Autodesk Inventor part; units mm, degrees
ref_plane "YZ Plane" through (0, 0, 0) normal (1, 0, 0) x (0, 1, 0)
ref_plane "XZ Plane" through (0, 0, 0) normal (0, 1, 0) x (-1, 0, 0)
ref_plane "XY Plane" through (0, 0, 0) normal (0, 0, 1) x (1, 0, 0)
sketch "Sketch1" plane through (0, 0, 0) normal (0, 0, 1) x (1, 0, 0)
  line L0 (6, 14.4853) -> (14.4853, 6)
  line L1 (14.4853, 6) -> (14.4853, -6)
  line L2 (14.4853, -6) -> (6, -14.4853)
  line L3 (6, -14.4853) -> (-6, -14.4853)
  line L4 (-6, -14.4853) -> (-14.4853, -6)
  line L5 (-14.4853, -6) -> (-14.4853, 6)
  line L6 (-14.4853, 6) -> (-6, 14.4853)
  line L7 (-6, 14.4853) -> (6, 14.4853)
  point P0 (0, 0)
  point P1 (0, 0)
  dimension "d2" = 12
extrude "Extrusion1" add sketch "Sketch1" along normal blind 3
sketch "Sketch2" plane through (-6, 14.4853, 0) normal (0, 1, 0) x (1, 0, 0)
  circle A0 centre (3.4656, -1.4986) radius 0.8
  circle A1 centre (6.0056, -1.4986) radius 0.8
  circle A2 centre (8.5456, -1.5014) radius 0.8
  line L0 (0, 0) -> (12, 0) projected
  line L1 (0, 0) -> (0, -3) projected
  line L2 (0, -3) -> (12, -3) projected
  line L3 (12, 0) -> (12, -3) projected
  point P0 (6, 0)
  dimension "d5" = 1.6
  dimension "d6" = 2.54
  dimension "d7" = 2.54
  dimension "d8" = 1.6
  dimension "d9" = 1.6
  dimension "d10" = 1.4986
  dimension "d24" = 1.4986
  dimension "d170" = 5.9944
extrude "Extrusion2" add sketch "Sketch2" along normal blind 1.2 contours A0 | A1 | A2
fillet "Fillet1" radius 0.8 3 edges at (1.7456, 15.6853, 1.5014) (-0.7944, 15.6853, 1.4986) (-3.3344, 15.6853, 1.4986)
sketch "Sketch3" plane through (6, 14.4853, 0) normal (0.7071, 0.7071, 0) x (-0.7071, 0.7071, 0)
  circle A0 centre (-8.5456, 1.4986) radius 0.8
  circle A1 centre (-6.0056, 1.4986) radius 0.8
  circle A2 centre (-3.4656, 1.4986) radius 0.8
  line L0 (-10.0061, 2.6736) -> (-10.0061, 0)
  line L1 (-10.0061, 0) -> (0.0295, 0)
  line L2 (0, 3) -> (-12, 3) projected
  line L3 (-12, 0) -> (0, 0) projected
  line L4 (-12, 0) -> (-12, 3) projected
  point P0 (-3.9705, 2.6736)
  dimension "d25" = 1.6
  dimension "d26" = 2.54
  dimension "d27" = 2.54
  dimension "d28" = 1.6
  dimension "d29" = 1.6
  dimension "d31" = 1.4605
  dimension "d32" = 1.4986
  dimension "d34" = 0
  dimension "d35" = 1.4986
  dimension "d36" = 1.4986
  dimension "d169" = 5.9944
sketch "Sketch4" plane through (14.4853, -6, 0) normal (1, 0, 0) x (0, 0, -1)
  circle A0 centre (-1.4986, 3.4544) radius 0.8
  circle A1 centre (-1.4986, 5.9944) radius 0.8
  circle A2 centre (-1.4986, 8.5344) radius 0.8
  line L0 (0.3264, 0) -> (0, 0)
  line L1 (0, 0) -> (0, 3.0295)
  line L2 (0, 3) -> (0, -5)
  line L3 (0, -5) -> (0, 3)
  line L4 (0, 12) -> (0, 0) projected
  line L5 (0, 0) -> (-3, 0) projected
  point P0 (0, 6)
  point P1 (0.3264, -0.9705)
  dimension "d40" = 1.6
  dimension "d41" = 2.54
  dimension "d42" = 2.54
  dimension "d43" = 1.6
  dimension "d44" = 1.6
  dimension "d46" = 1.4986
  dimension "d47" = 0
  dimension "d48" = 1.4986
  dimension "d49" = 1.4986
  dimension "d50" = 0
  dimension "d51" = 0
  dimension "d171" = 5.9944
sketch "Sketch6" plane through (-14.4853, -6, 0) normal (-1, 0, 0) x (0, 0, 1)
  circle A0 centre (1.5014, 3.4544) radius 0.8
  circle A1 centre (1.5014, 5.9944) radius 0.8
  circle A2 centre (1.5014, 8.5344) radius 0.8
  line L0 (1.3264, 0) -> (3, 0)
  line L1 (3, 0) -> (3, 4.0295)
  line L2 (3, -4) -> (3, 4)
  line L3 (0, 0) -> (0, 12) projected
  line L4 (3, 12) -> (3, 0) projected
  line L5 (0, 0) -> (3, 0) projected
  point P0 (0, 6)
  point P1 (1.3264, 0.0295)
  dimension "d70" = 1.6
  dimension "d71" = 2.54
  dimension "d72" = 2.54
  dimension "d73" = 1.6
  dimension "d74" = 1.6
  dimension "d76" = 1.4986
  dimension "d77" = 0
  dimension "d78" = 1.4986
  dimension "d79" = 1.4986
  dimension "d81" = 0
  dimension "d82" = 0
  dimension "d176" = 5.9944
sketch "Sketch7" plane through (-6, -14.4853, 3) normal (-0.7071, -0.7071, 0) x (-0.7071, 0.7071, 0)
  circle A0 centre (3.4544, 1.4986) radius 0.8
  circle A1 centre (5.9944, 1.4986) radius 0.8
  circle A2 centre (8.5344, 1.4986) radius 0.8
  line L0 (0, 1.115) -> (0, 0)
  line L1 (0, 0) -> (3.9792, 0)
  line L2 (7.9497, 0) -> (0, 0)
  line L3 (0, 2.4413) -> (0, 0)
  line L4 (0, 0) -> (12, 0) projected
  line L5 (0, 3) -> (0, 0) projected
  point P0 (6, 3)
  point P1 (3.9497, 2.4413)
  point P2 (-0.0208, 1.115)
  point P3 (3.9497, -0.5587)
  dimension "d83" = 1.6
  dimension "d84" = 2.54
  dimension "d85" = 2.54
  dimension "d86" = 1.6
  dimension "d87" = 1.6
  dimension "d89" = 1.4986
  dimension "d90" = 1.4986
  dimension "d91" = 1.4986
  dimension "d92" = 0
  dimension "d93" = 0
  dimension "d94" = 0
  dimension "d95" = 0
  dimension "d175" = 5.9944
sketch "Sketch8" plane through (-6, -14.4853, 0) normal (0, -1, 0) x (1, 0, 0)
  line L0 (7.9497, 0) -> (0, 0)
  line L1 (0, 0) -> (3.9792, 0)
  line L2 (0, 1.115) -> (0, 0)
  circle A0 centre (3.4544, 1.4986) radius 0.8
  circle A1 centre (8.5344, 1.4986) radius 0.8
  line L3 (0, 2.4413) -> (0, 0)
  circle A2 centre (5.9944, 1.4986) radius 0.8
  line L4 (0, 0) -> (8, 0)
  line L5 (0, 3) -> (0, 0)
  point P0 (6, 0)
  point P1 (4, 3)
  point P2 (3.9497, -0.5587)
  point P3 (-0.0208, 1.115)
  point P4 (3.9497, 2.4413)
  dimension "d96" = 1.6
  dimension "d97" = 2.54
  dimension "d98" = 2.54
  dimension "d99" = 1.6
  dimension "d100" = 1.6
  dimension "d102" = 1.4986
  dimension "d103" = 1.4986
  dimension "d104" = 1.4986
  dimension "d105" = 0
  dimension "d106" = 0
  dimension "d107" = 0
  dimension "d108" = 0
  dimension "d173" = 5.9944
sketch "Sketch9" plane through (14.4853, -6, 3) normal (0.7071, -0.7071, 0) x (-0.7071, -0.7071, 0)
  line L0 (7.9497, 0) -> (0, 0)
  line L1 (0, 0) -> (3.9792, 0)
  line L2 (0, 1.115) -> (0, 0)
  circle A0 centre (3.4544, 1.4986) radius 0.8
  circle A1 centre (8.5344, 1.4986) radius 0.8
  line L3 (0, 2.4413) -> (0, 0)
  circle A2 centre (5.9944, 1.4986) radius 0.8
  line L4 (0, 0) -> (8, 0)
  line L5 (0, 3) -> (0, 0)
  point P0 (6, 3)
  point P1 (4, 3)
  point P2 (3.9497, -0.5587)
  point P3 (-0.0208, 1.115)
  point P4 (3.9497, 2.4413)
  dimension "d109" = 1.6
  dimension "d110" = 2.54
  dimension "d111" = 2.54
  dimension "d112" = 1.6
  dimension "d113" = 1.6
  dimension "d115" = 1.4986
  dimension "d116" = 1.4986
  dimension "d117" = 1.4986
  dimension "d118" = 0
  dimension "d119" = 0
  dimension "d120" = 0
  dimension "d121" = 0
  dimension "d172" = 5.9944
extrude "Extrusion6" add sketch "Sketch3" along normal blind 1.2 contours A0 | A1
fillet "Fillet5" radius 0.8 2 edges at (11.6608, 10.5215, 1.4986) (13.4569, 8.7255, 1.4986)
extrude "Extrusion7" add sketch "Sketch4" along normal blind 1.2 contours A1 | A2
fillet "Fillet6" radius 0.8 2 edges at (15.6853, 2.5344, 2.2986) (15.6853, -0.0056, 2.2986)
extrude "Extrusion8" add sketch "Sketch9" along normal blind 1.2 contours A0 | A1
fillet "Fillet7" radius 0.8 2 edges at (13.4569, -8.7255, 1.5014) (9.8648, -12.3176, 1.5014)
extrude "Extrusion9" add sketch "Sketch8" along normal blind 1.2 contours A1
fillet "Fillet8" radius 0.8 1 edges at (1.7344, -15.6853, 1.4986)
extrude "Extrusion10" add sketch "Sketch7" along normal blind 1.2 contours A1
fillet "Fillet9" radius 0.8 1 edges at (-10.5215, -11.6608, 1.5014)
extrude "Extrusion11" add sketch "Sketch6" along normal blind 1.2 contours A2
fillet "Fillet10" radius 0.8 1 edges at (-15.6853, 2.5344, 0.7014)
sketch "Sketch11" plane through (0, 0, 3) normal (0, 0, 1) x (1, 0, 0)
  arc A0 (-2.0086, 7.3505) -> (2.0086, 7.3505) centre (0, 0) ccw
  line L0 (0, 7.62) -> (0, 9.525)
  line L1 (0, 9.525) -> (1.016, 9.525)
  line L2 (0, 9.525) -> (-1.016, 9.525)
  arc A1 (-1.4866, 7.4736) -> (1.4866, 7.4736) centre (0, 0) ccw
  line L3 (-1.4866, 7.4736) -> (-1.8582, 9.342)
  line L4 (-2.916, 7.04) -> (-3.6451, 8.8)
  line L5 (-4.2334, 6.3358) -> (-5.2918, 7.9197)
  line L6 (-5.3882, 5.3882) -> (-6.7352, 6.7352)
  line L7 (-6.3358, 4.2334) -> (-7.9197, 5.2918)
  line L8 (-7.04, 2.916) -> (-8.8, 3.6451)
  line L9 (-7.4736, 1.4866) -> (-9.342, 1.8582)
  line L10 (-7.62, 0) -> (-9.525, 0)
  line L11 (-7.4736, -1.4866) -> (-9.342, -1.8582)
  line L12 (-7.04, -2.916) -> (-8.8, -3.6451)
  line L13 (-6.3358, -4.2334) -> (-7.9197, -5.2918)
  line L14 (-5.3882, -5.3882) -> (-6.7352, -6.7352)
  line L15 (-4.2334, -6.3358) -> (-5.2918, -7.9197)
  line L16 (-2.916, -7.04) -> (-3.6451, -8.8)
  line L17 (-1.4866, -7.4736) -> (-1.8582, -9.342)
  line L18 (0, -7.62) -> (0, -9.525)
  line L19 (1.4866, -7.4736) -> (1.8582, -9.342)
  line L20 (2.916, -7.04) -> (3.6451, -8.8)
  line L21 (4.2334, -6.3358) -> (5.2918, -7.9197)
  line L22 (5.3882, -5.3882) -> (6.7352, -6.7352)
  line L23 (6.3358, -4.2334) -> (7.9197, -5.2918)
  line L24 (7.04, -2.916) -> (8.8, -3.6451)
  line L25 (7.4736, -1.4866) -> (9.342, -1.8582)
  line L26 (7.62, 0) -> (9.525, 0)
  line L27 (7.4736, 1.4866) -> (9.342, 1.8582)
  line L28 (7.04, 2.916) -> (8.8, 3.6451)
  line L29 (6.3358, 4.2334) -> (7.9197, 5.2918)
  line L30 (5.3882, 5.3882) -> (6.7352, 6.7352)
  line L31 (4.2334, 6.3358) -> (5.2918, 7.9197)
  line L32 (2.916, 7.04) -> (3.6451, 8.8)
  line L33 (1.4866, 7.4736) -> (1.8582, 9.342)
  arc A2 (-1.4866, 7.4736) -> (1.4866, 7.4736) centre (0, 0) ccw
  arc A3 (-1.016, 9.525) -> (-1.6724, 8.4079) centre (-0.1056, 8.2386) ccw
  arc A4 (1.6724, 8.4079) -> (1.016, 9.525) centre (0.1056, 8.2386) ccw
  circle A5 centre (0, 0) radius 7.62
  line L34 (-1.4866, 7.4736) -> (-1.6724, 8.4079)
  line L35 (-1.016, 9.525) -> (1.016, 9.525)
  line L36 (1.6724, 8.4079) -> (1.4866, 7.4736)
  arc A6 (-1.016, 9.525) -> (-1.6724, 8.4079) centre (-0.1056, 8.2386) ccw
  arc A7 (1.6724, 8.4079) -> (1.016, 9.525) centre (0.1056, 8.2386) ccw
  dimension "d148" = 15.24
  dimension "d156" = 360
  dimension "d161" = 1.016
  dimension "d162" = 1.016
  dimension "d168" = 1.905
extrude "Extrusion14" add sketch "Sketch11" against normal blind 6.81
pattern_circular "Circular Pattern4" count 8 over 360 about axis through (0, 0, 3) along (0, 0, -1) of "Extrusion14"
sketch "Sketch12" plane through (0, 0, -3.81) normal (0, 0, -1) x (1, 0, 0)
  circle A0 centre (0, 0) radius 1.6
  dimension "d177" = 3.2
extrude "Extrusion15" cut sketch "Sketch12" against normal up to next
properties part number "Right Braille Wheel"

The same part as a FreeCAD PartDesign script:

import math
import FreeCAD as App
import Part
import Sketcher

V = App.Vector
Q = App.Units.Quantity


def edges_at(feature, points):
    """Names of the edges that pass closest to the given points."""
    edges = feature.Shape.Edges
    near = lambda p: min(range(len(edges)), key=lambda i: edges[i].distToShape(Part.Vertex(*p))[0])
    return sorted({f"Edge{near(p) + 1}" for p in points})


def add_polygon(sketch, points):
    """Adds a closed chain of lines whose ends are joined by coincident constraints."""
    first, n = sketch.GeometryCount, len(points)
    for a, b in zip(points, points[1:] + points[:1]):
        sketch.addGeometry(Part.LineSegment(App.Vector(*a, 0), App.Vector(*b, 0)), False)
    for i in range(n):
        sketch.addConstraint(Sketcher.Constraint("Coincident", first + i, 2, first + (i + 1) % n, 1))

doc = App.newDocument("Part")
body = doc.addObject("PartDesign::Body", "Body")

# Sketch on XY plane
sketch1 = body.newObject("Sketcher::SketchObject", "Sketch")
sketch1.AttachmentSupport = (doc.getObject("XY_Plane"), [""])
sketch1.MapMode = "FlatFace"
add_polygon(sketch1, [(14.4853, 6), (6, 14.4853), (-6, 14.4853), (-14.4853, 6), (-14.4853, -6), (-6, -14.4853), (6, -14.4853), (14.4853, -6)])  # lines 0-7
sketch1.addConstraint(Sketcher.Constraint("Horizontal", 1))
sketch1.addConstraint(Sketcher.Constraint("Vertical", 3))
sketch1.addConstraint(Sketcher.Constraint("Horizontal", 5))
sketch1.addConstraint(Sketcher.Constraint("Vertical", 7))
sketch1.addConstraint(Sketcher.Constraint("Symmetric", 0, 2, 4, 2, -1, 1))
sketch1.addConstraint(Sketcher.Constraint("Symmetric", 2, 2, 6, 2, -1, 1))
sketch1.addConstraint(Sketcher.Constraint("Perpendicular", 0, 2))
sketch1.addConstraint(Sketcher.Constraint("Perpendicular", 2, 4))
sketch1.addConstraint(Sketcher.Constraint("Perpendicular", 4, 6))
sketch1.addConstraint(Sketcher.Constraint("Horizontal", 3, 2, 6, 2))
sketch1.addConstraint(Sketcher.Constraint("Vertical", 1, 2, 4, 2))
sketch1.addConstraint(Sketcher.Constraint("Equal", 5, 3))
sketch1.addConstraint(Sketcher.Constraint("DistanceX", 1, 2, 1, 1, Q("12 mm")))
sketch1.addConstraint(Sketcher.Constraint("Distance", 0, Q("12 mm")))
pad1 = body.newObject("PartDesign::Pad", "Pad")
pad1.Profile = sketch1
pad1.Length = 3

# Sketch on XZ plane
sketch2 = body.newObject("Sketcher::SketchObject", "Sketch001")
sketch2.AttachmentSupport = (doc.getObject("XZ_Plane"), [""])
sketch2.MapMode = "FlatFace"
sketch2.AttachmentOffset = App.Placement(V(0, 0, -14.4853), App.Rotation())
sketch2.addGeometry(Part.Circle(V(-2.5344, 1.4986, 0), V(0, 0, 1), 0.8), False)
sketch2.addGeometry(Part.Circle(V(0.0056, 1.4986, 0), V(0, 0, 1), 0.8), False)
sketch2.addGeometry(Part.Circle(V(2.5456, 1.5014, 0), V(0, 0, 1), 0.8), False)
sketch2.addConstraint(Sketcher.Constraint("Equal", 0, 1))
sketch2.addConstraint(Sketcher.Constraint("Equal", 1, 2))
sketch2.addConstraint(Sketcher.Constraint("Horizontal", 0, 3, 1, 3))
sketch2.addConstraint(Sketcher.Constraint("Diameter", 0, Q("1.6 mm")))
sketch2.addConstraint(Sketcher.Constraint("DistanceX", 0, 3, 1, 3, Q("2.54 mm")))
sketch2.addConstraint(Sketcher.Constraint("DistanceX", 1, 3, 2, 3, Q("2.54 mm")))
sketch2.addConstraint(Sketcher.Constraint("DistanceY", -1, 1, 0, 3, Q("1.4986 mm")))
sketch2.addConstraint(Sketcher.Constraint("DistanceX", 0, 3, -1, 1, Q("2.5344 mm")))
sketch2.addConstraint(Sketcher.Constraint("DistanceY", -1, 1, 2, 3, Q("1.5014 mm")))
pad2 = body.newObject("PartDesign::Pad", "Pad001")
pad2.Profile = sketch2
pad2.Length = 1.2
pad2.Reversed = True
doc.recompute()

fillet = body.newObject("PartDesign::Fillet", "Fillet")
fillet.Base = (pad2, edges_at(pad2, [(1.746, 15.685, 1.501), (-0.794, 15.685, 1.499), (-3.334, 15.685, 1.499)]))
fillet.Radius = 0.8

# Sketch on an angled plane
sketch3 = body.newObject("Sketcher::SketchObject", "Sketch002")
sketch3.Placement = App.Placement(V(6, 14.4853, 0), App.Rotation(V(-0.707106781, 0.707106781, 0), V(0, 0, 0.999999999), V(0.707106781, 0.707106781, 0), "ZXY"))
sketch3.addGeometry(Part.Circle(V(-8.5456, 1.4986, 0), V(0, 0, 1), 0.8), False)
sketch3.addGeometry(Part.Circle(V(-6.0056, 1.4986, 0), V(0, 0, 1), 0.8), False)
sketch3.addConstraint(Sketcher.Constraint("Equal", 0, 1))
sketch3.addConstraint(Sketcher.Constraint("Horizontal", 0, 3, 1, 3))
sketch3.addConstraint(Sketcher.Constraint("Diameter", 0, Q("1.6 mm")))
sketch3.addConstraint(Sketcher.Constraint("DistanceX", 0, 3, 1, 3, Q("2.54 mm")))
sketch3.addConstraint(Sketcher.Constraint("DistanceY", -1, 1, 0, 3, Q("1.4986 mm")))
sketch3.addConstraint(Sketcher.Constraint("DistanceX", 0, 3, -1, 1, Q("8.5456 mm")))
pad3 = body.newObject("PartDesign::Pad", "Pad002")
pad3.Profile = sketch3
pad3.Length = 1.2
doc.recompute()

fillet2 = body.newObject("PartDesign::Fillet", "Fillet001")
fillet2.Base = (pad3, edges_at(pad3, [(11.661, 10.521, 1.499), (13.457, 8.726, 1.499)]))
fillet2.Radius = 0.8

# Sketch on YZ plane
sketch4 = body.newObject("Sketcher::SketchObject", "Sketch003")
sketch4.AttachmentSupport = (doc.getObject("YZ_Plane"), [""])
sketch4.MapMode = "FlatFace"
sketch4.AttachmentOffset = App.Placement(V(0, 0, 14.4853), App.Rotation())
sketch4.addGeometry(Part.Circle(V(-0.0056, 1.4986, 0), V(0, 0, 1), 0.8), False)
sketch4.addGeometry(Part.Circle(V(2.5344, 1.4986, 0), V(0, 0, 1), 0.8), False)
sketch4.addConstraint(Sketcher.Constraint("Equal", 0, 1))
sketch4.addConstraint(Sketcher.Constraint("Horizontal", 0, 3, 1, 3))
sketch4.addConstraint(Sketcher.Constraint("Diameter", 0, Q("1.6 mm")))
sketch4.addConstraint(Sketcher.Constraint("DistanceX", 0, 3, 1, 3, Q("2.54 mm")))
sketch4.addConstraint(Sketcher.Constraint("DistanceY", -1, 1, 0, 3, Q("1.4986 mm")))
sketch4.addConstraint(Sketcher.Constraint("DistanceX", 0, 3, -1, 1, Q("0.0056 mm")))
pad4 = body.newObject("PartDesign::Pad", "Pad003")
pad4.Profile = sketch4
pad4.Length = 1.2
doc.recompute()

fillet3 = body.newObject("PartDesign::Fillet", "Fillet002")
fillet3.Base = (pad4, edges_at(pad4, [(15.685, 2.534, 2.299), (15.685, -0.006, 2.299)]))
fillet3.Radius = 0.8

# Sketch on an angled plane
sketch5 = body.newObject("Sketcher::SketchObject", "Sketch004")
sketch5.Placement = App.Placement(V(14.4853, -6, 3), App.Rotation(V(-0.707106781, -0.707106781, 0), V(0, 0, -0.999999999), V(0.707106781, -0.707106781, 0), "ZXY"))
sketch5.addGeometry(Part.Circle(V(3.4544, 1.4986, 0), V(0, 0, 1), 0.8), False)
sketch5.addGeometry(Part.Circle(V(8.5344, 1.4986, 0), V(0, 0, 1), 0.8), False)
sketch5.addConstraint(Sketcher.Constraint("Equal", 0, 1))
sketch5.addConstraint(Sketcher.Constraint("Horizontal", 0, 3, 1, 3))
sketch5.addConstraint(Sketcher.Constraint("Diameter", 0, Q("1.6 mm")))
sketch5.addConstraint(Sketcher.Constraint("DistanceY", -1, 1, 0, 3, Q("1.4986 mm")))
sketch5.addConstraint(Sketcher.Constraint("DistanceX", 0, 3, 1, 3, Q("5.08 mm")))
sketch5.addConstraint(Sketcher.Constraint("DistanceX", -1, 1, 0, 3, Q("3.4544 mm")))
pad5 = body.newObject("PartDesign::Pad", "Pad004")
pad5.Profile = sketch5
pad5.Length = 1.2
doc.recompute()

fillet4 = body.newObject("PartDesign::Fillet", "Fillet003")
fillet4.Base = (pad5, edges_at(pad5, [(13.457, -8.726, 1.501), (9.865, -12.318, 1.501)]))
fillet4.Radius = 0.8

# Sketch on XZ plane
sketch6 = body.newObject("Sketcher::SketchObject", "Sketch005")
sketch6.AttachmentSupport = (doc.getObject("XZ_Plane"), [""])
sketch6.MapMode = "FlatFace"
sketch6.AttachmentOffset = App.Placement(V(0, 0, 14.4853), App.Rotation())
sketch6.addGeometry(Part.Circle(V(2.5344, 1.4986, 0), V(0, 0, 1), 0.8), False)
sketch6.addConstraint(Sketcher.Constraint("Diameter", 0, Q("1.6 mm")))
sketch6.addConstraint(Sketcher.Constraint("DistanceY", -1, 1, 0, 3, Q("1.4986 mm")))
sketch6.addConstraint(Sketcher.Constraint("DistanceX", -1, 1, 0, 3, Q("2.5344 mm")))
pad6 = body.newObject("PartDesign::Pad", "Pad005")
pad6.Profile = sketch6
pad6.Length = 1.2
doc.recompute()

fillet5 = body.newObject("PartDesign::Fillet", "Fillet004")
fillet5.Base = (pad6, edges_at(pad6, [(1.734, -15.685, 1.499)]))
fillet5.Radius = 0.8

# Sketch on an angled plane
sketch7 = body.newObject("Sketcher::SketchObject", "Sketch006")
sketch7.Placement = App.Placement(V(-6, -14.4853, 3), App.Rotation(V(-0.707106781, 0.707106781, 0), V(0, 0, -0.999999999), V(-0.707106781, -0.707106781, 0), "ZXY"))
sketch7.addGeometry(Part.Circle(V(5.9944, 1.4986, 0), V(0, 0, 1), 0.8), False)
sketch7.addConstraint(Sketcher.Constraint("Diameter", 0, Q("1.6 mm")))
sketch7.addConstraint(Sketcher.Constraint("DistanceX", -1, 1, 0, 3, Q("5.9944 mm")))
sketch7.addConstraint(Sketcher.Constraint("DistanceY", -1, 1, 0, 3, Q("1.4986 mm")))
pad7 = body.newObject("PartDesign::Pad", "Pad006")
pad7.Profile = sketch7
pad7.Length = 1.2
doc.recompute()

fillet6 = body.newObject("PartDesign::Fillet", "Fillet005")
fillet6.Base = (pad7, edges_at(pad7, [(-10.521, -11.661, 1.501)]))
fillet6.Radius = 0.8

# Sketch on YZ plane
sketch8 = body.newObject("Sketcher::SketchObject", "Sketch007")
sketch8.AttachmentSupport = (doc.getObject("YZ_Plane"), [""])
sketch8.MapMode = "FlatFace"
sketch8.AttachmentOffset = App.Placement(V(0, 0, -14.4853), App.Rotation())
sketch8.addGeometry(Part.Circle(V(2.5344, 1.5014, 0), V(0, 0, 1), 0.8), False)
sketch8.addConstraint(Sketcher.Constraint("Diameter", 0, Q("1.6 mm")))
sketch8.addConstraint(Sketcher.Constraint("DistanceX", -1, 1, 0, 3, Q("2.5344 mm")))
sketch8.addConstraint(Sketcher.Constraint("DistanceY", -1, 1, 0, 3, Q("1.5014 mm")))
pad8 = body.newObject("PartDesign::Pad", "Pad007")
pad8.Profile = sketch8
pad8.Length = 1.2
pad8.Reversed = True
doc.recompute()

fillet7 = body.newObject("PartDesign::Fillet", "Fillet006")
fillet7.Base = (pad8, edges_at(pad8, [(-15.685, 2.534, 0.701)]))
fillet7.Radius = 0.8

# Sketch on XY plane
sketch9 = body.newObject("Sketcher::SketchObject", "Sketch008")
sketch9.AttachmentSupport = (doc.getObject("XY_Plane"), [""])
sketch9.MapMode = "FlatFace"
sketch9.AttachmentOffset = App.Placement(V(0, 0, 3), App.Rotation())
sketch9.addGeometry(Part.ArcOfCircle(Part.Circle(V(0, 0, 0), V(0, 0, 1), 7.620018), math.radians(101.250063), math.radians(438.749937)), False)
sketch9.addGeometry(Part.LineSegment(V(1.4866, 7.4736, 0), V(1.672419, 8.407896, 0)), False)
sketch9.addGeometry(Part.ArcOfCircle(Part.Circle(V(0.1056, 8.2386, 0), V(0, 0, 1), 1.57592), math.radians(6.167147), math.radians(54.712521)), False)
sketch9.addGeometry(Part.LineSegment(V(1.016, 9.525, 0), V(-1.016, 9.525, 0)), False)
sketch9.addGeometry(Part.ArcOfCircle(Part.Circle(V(-0.1056, 8.2386, 0), V(0, 0, 1), 1.575961), math.radians(125.287479), math.radians(173.832853)), False)
sketch9.addGeometry(Part.LineSegment(V(-1.672419, 8.407896, 0), V(-1.4866, 7.4736, 0)), False)
sketch9.addConstraint(Sketcher.Constraint("Coincident", 0, 2, 1, 1))
sketch9.addConstraint(Sketcher.Constraint("Coincident", 1, 2, 2, 1))
sketch9.addConstraint(Sketcher.Constraint("Coincident", 2, 2, 3, 1))
sketch9.addConstraint(Sketcher.Constraint("Coincident", 3, 2, 4, 1))
sketch9.addConstraint(Sketcher.Constraint("Coincident", 4, 2, 5, 1))
sketch9.addConstraint(Sketcher.Constraint("Coincident", 5, 2, 0, 1))
sketch9.addConstraint(Sketcher.Constraint("Horizontal", 3))
sketch9.addConstraint(Sketcher.Constraint("Coincident", 0, 3, -1, 1))
sketch9.addConstraint(Sketcher.Constraint("Equal", 2, 4))
sketch9.addConstraint(Sketcher.Constraint("Symmetric", 2, 3, 4, 3, -2))
sketch9.addConstraint(Sketcher.Constraint("Horizontal", 1, 2, 4, 2))
sketch9.addConstraint(Sketcher.Constraint("Horizontal", 0, 2, 5, 2))
sketch9.addConstraint(Sketcher.Constraint("Radius", 0, Q("7.62 mm")))
sketch9.addConstraint(Sketcher.Constraint("DistanceX", -1, 1, 2, 2, Q("1.016 mm")))
sketch9.addConstraint(Sketcher.Constraint("Radius", 2, Q("1.576 mm")))
sketch9.addConstraint(Sketcher.Constraint("DistanceY", -1, 1, 1, 2, Q("8.408 mm")))
sketch9.addConstraint(Sketcher.Constraint("DistanceY", -1, 1, 2, 2, Q("9.525 mm")))
sketch9.addConstraint(Sketcher.Constraint("DistanceX", 2, 3, 0, 2, Q("1.381 mm")))
sketch9.addConstraint(Sketcher.Constraint("DistanceY", 0, 2, 2, 3, Q("0.765 mm")))
pad9 = body.newObject("PartDesign::Pad", "Pad008")
pad9.Profile = sketch9
pad9.Length = 6.81
pad9.Reversed = True
doc.recompute()

polarpattern = body.newObject("PartDesign::PolarPattern", "PolarPattern")
polarpattern.Originals = [pad9]
polarpattern.Axis = (doc.getObject("Z_Axis"), [""])
polarpattern.Angle = 360
polarpattern.Occurrences = 8
body.Tip = polarpattern

# Sketch on XY plane
sketch10 = body.newObject("Sketcher::SketchObject", "Sketch009")
sketch10.AttachmentSupport = (doc.getObject("XY_Plane"), [""])
sketch10.MapMode = "FlatFace"
sketch10.AttachmentOffset = App.Placement(V(0, 0, -3.81), App.Rotation())
sketch10.addGeometry(Part.Circle(V(0, 0, 0), V(0, 0, 1), 1.6), False)
sketch10.addConstraint(Sketcher.Constraint("Coincident", 0, 3, -1, 1))
sketch10.addConstraint(Sketcher.Constraint("Diameter", 0, Q("3.2 mm")))
pocket1 = body.newObject("PartDesign::Pocket", "Pocket")
pocket1.Profile = sketch10
pocket1.Type = "UpToFirst"
pocket1.Reversed = True

doc.recompute()
